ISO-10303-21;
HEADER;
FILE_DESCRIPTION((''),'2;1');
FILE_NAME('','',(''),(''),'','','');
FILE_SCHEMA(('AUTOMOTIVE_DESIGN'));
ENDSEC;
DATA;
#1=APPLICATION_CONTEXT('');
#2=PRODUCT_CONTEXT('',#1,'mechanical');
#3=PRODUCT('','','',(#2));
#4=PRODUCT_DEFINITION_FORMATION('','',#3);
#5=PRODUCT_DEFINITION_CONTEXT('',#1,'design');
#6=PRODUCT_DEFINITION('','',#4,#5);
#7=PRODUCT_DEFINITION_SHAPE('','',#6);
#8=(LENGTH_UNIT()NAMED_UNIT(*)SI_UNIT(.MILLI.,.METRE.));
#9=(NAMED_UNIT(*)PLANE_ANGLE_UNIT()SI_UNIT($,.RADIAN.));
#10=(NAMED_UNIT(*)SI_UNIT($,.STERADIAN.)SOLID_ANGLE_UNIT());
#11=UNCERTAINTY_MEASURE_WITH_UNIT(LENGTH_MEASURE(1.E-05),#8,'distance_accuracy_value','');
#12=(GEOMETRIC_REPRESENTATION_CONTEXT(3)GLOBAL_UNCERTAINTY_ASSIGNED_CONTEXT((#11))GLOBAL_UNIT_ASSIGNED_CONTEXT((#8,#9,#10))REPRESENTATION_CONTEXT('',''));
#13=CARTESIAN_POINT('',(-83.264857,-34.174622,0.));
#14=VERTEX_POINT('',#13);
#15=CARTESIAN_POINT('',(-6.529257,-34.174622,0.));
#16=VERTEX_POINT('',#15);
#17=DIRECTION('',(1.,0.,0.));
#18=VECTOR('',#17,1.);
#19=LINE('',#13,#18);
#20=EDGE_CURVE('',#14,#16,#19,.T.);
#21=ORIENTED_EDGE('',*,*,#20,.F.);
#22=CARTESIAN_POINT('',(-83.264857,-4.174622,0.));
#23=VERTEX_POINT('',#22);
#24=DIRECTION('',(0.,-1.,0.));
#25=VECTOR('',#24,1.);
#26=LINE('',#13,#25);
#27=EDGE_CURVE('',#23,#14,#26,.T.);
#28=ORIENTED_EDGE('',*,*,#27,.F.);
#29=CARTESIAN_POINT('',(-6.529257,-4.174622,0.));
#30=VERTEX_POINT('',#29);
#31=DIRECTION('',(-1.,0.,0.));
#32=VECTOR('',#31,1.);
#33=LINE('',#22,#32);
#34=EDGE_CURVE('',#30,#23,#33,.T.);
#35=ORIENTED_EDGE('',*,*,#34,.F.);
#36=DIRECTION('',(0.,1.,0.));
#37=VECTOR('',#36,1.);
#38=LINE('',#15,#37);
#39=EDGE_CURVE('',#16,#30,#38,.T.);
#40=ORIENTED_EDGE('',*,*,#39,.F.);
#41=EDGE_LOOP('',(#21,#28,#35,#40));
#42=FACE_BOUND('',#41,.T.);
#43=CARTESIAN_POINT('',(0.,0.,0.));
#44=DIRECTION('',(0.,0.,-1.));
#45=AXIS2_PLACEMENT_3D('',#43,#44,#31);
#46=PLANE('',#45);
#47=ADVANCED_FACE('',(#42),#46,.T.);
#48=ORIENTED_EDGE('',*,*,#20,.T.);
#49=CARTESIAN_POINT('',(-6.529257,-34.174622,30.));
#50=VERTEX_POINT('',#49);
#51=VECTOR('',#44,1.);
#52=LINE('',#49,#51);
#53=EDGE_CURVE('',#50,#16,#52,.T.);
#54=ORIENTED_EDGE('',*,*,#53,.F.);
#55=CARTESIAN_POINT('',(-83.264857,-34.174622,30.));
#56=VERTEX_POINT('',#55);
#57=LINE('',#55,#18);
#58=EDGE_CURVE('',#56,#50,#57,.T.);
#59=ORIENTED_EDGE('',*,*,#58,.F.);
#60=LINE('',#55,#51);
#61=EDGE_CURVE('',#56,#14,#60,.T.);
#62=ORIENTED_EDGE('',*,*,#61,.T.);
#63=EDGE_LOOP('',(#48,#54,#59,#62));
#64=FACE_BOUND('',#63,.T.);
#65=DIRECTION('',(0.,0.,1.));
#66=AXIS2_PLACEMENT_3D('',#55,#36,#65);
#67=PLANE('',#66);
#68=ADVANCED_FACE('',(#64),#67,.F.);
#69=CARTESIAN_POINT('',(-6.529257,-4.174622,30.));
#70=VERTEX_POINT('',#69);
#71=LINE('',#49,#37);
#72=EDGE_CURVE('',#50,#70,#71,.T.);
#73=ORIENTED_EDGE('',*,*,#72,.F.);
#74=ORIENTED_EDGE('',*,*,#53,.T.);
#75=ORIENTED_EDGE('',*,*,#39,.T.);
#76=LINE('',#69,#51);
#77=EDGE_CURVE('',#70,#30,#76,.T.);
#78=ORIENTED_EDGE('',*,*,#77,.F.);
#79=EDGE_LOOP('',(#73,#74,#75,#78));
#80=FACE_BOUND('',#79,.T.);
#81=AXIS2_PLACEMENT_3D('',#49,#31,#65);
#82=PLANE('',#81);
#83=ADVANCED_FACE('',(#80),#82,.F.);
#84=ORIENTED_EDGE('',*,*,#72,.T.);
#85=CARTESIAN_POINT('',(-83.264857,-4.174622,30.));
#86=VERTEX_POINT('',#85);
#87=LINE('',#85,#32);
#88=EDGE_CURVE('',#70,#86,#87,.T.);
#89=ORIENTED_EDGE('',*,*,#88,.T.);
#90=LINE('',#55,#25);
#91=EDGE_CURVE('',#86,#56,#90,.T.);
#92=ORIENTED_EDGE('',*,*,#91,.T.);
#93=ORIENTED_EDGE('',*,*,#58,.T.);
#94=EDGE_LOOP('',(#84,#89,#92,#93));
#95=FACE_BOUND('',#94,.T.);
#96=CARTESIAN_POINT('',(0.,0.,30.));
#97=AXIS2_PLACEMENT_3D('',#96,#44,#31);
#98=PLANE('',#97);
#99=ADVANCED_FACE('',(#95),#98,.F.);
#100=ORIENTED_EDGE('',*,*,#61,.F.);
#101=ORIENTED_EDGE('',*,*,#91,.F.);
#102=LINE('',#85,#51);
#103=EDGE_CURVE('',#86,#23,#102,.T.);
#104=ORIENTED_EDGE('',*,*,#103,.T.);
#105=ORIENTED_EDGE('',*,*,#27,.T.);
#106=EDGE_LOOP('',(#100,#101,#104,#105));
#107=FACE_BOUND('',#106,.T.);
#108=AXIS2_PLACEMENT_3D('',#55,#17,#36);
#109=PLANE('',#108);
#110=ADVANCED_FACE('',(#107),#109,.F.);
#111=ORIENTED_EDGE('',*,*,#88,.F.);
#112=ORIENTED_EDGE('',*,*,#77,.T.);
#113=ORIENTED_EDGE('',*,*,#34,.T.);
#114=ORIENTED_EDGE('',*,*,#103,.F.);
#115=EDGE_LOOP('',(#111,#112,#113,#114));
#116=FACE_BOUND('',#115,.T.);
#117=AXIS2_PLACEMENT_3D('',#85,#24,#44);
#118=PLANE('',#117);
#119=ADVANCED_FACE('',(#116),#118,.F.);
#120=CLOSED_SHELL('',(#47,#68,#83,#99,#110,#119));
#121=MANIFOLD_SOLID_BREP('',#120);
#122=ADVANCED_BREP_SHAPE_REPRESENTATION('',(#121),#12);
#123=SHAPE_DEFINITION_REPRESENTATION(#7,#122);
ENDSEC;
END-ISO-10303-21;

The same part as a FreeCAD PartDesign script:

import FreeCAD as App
import Part
import Sketcher


def add_polygon(sketch, points):
    """Adds a closed chain of lines whose ends are joined by coincident constraints."""
    first, n = sketch.GeometryCount, len(points)
    for a, b in zip(points, points[1:] + points[:1]):
        sketch.addGeometry(Part.LineSegment(App.Vector(*a, 0), App.Vector(*b, 0)), False)
    for i in range(n):
        sketch.addConstraint(Sketcher.Constraint("Coincident", first + i, 2, first + (i + 1) % n, 1))

doc = App.newDocument("Part")
body = doc.addObject("PartDesign::Body", "Body")

# Sketch on XY plane
sketch1 = body.newObject("Sketcher::SketchObject", "Sketch")
sketch1.AttachmentSupport = (doc.getObject("XY_Plane"), [""])
sketch1.MapMode = "FlatFace"
add_polygon(sketch1, [(-83.264857, -4.174622), (-83.264857, -34.174622), (-6.529257, -34.174622), (-6.529257, -4.174622)])  # lines 0-3
sketch1.addConstraint([
    Sketcher.Constraint("Vertical", 0),
    Sketcher.Constraint("Horizontal", 1),
    Sketcher.Constraint("Vertical", 2),
    Sketcher.Constraint("Horizontal", 3),
    Sketcher.Constraint("DistanceY", 0, 2, 0, 1, 30.0),
    Sketcher.Constraint("DistanceX", 1, 1, 1, 2, 76.7356),
    Sketcher.Constraint("DistanceX", 0, 2, -1, 1, 83.264857),
    Sketcher.Constraint("DistanceY", 0, 2, -1, 1, 34.174622),
])
pad1 = body.newObject("PartDesign::Pad", "Pad")
pad1.Profile = sketch1
pad1.Length = 30

doc.recompute()
